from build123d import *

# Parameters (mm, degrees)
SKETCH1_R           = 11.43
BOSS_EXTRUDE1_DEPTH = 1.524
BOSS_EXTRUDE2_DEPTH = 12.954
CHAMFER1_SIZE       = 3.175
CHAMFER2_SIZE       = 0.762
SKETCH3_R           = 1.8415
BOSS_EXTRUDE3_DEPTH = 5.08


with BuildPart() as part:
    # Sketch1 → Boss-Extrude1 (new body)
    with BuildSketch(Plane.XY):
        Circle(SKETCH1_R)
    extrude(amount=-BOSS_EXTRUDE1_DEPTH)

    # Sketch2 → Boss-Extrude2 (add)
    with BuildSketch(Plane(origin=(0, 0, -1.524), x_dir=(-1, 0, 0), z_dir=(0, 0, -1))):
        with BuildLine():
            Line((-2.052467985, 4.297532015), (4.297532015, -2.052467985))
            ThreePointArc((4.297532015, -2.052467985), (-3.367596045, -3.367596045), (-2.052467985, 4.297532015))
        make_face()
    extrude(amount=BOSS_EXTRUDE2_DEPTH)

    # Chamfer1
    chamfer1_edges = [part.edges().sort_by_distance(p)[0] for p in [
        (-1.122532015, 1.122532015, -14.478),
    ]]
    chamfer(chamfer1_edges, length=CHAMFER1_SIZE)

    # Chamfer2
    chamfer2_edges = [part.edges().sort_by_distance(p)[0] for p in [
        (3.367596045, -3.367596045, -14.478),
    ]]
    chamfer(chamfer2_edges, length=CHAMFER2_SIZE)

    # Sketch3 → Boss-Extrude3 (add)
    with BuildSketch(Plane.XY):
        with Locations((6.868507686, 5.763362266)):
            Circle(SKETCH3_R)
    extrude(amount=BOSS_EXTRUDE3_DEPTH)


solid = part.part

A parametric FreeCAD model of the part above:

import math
import FreeCAD as App
import Part
import Sketcher
Q = App.Units.Quantity


def edges_at(feature, points):
    """Names of the edges that pass closest to the given points."""
    edges = feature.Shape.Edges
    near = lambda p: min(range(len(edges)), key=lambda i: edges[i].distToShape(Part.Vertex(*p))[0])
    return sorted({f"Edge{near(p) + 1}" for p in points})

doc = App.newDocument("Part")
body = doc.addObject("PartDesign::Body", "Body")

sketch1 = body.newObject("Sketcher::SketchObject", "Sketch")
sketch1.AttachmentSupport = (doc.getObject("XY_Plane"), [""])
sketch1.MapMode = "FlatFace"
sketch1.addGeometry(Part.Circle(App.Vector(0, 0, 0), App.Vector(0, 0, 1), 11), False)
sketch1.addConstraint(Sketcher.Constraint("Coincident", 0, 3, -1, 1))
sketch1.addConstraint(Sketcher.Constraint("Diameter", 0, Q("0.9 in")))
pad1 = body.newObject("PartDesign::Pad", "Pad")
pad1.Profile = sketch1
pad1.Length = Q("0.06 in")
pad1.Reversed = True

sketch2 = body.newObject("Sketcher::SketchObject", "Sketch001")
sketch2.AttachmentSupport = (doc.getObject("XY_Plane"), [""])
sketch2.MapMode = "FlatFace"
sketch2.AttachmentOffset = App.Placement(App.Vector(0, 0, -0.06 * 25.4), App.Rotation())
sketch2.addGeometry(Part.LineSegment(App.Vector(-4.3, -2.1, 0), App.Vector(2.1, 4.3, 0)), False)
sketch2.addGeometry(Part.ArcOfCircle(Part.Circle(App.Vector(0, 0, 0), App.Vector(0, 0, 1), 4.8), math.radians(-154), math.radians(64)), False)
sketch2.addConstraint(Sketcher.Constraint("Coincident", 0, 1, 1, 1))
sketch2.addConstraint(Sketcher.Constraint("Coincident", 1, 2, 0, 2))
sketch2.addConstraint(Sketcher.Constraint("Coincident", 1, 3, -1, 1))
sketch2.addConstraint(Sketcher.Constraint("Angle", 0, Q("45 deg")))
sketch2.addConstraint(Sketcher.Constraint("Radius", 1, Q("0.1875 in")))
sketch2.addConstraint(Sketcher.Constraint("DistanceX", 0, 1, 1, 2, Q("0.25 in")))
pad2 = body.newObject("PartDesign::Pad", "Pad001")
pad2.Profile = sketch2
pad2.Length = Q("0.51 in")
pad2.Reversed = True
doc.recompute()

chamfer = body.newObject("PartDesign::Chamfer", "Chamfer")
chamfer.Base = (pad2, edges_at(pad2, [(-1.123, 1.123, -14.478)]))
chamfer.Size = Q("0.125 in")
doc.recompute()

chamfer2 = body.newObject("PartDesign::Chamfer", "Chamfer001")
chamfer2.Base = (chamfer, edges_at(chamfer, [(3.368, -3.368, -14.478)]))
chamfer2.Size = Q("0.03 in")

sketch3 = body.newObject("Sketcher::SketchObject", "Sketch002")
sketch3.AttachmentSupport = (doc.getObject("XY_Plane"), [""])
sketch3.MapMode = "FlatFace"
sketch3.addGeometry(Part.Circle(App.Vector(6.9, 5.8, 0), App.Vector(0, 0, 1), 1.8), False)
sketch3.addConstraint(Sketcher.Constraint("Diameter", 0, Q("0.145 in")))
sketch3.addConstraint(Sketcher.Constraint("DistanceX", -1, 1, 0, 3, Q("6.868508 mm")))
sketch3.addConstraint(Sketcher.Constraint("DistanceY", -1, 1, 0, 3, Q("5.763362 mm")))
pad3 = body.newObject("PartDesign::Pad", "Pad002")
pad3.Profile = sketch3
pad3.Length = Q("0.2 in")

doc.recompute()
